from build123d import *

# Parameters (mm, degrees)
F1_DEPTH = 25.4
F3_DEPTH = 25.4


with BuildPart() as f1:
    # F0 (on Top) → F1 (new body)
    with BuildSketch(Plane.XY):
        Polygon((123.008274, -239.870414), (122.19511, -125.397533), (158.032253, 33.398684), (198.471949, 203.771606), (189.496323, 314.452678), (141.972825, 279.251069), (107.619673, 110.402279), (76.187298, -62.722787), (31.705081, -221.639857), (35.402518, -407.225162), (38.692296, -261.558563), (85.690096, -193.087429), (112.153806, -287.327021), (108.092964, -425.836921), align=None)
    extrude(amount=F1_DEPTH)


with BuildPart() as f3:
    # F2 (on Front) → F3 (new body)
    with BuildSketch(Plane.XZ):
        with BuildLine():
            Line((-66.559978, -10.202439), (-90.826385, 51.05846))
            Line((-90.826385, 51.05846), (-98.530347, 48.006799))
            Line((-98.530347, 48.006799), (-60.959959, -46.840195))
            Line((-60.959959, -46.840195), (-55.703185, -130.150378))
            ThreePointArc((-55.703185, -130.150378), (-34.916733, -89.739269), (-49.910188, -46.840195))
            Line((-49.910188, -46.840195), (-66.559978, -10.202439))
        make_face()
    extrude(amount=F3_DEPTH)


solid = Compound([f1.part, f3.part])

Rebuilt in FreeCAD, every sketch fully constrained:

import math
import FreeCAD as App
import Part
import Sketcher
Q = App.Units.Quantity

doc = App.newDocument("Part")
body = doc.addObject("PartDesign::Body", "Body")

# Sketch on XY plane
sketch1 = body.newObject("Sketcher::SketchObject", "Sketch")
sketch1.AttachmentSupport = (doc.getObject("XY_Plane"), [""])
sketch1.MapMode = "FlatFace"
sketch1.addGeometry([
    Part.LineSegment(App.Vector(123.008274, -239.870414, 0), App.Vector(122.19511, -125.397533, 0)),  # 0
    Part.LineSegment(App.Vector(122.19511, -125.397533, 0), App.Vector(158.032253, 33.398684, 0)),  # 1
    Part.LineSegment(App.Vector(158.032253, 33.398684, 0), App.Vector(198.471949, 203.771606, 0)),  # 2
    Part.LineSegment(App.Vector(198.471949, 203.771606, 0), App.Vector(189.496323, 314.452678, 0)),  # 3
    Part.LineSegment(App.Vector(189.496323, 314.452678, 0), App.Vector(141.972825, 279.251069, 0)),  # 4
    Part.LineSegment(App.Vector(141.972825, 279.251069, 0), App.Vector(107.619673, 110.402279, 0)),  # 5
    Part.LineSegment(App.Vector(107.619673, 110.402279, 0), App.Vector(76.187298, -62.722787, 0)),  # 6
    Part.LineSegment(App.Vector(76.187298, -62.722787, 0), App.Vector(31.705081, -221.639857, 0)),  # 7
    Part.LineSegment(App.Vector(31.705081, -221.639857, 0), App.Vector(35.402518, -407.225162, 0)),  # 8
    Part.LineSegment(App.Vector(35.402518, -407.225162, 0), App.Vector(38.692296, -261.558563, 0)),  # 9
    Part.LineSegment(App.Vector(38.692296, -261.558563, 0), App.Vector(85.690096, -193.087429, 0)),  # 10
    Part.LineSegment(App.Vector(85.690096, -193.087429, 0), App.Vector(112.153806, -287.327021, 0)),  # 11
    Part.LineSegment(App.Vector(112.153806, -287.327021, 0), App.Vector(108.092964, -425.836921, 0)),  # 12
    Part.LineSegment(App.Vector(108.092964, -425.836921, 0), App.Vector(123.008274, -239.870414, 0)),  # 13
], False)
sketch1.addConstraint([
    Sketcher.Constraint("Coincident", 0, 2, 1, 1),
    Sketcher.Constraint("Coincident", 1, 2, 2, 1),
    Sketcher.Constraint("Coincident", 2, 2, 3, 1),
    Sketcher.Constraint("Coincident", 3, 2, 4, 1),
    Sketcher.Constraint("Coincident", 4, 2, 5, 1),
    Sketcher.Constraint("Coincident", 5, 2, 6, 1),
    Sketcher.Constraint("Coincident", 6, 2, 7, 1),
    Sketcher.Constraint("Coincident", 7, 2, 8, 1),
    Sketcher.Constraint("Coincident", 8, 2, 9, 1),
    Sketcher.Constraint("Coincident", 9, 2, 10, 1),
    Sketcher.Constraint("Coincident", 10, 2, 11, 1),
    Sketcher.Constraint("Coincident", 11, 2, 12, 1),
    Sketcher.Constraint("Coincident", 12, 2, 13, 1),
    Sketcher.Constraint("Coincident", 13, 2, 0, 1),
    Sketcher.Constraint("DistanceX", -1, 1, 6, 2, Q("2.9994999 in")),
    Sketcher.Constraint("DistanceX", -1, 1, 8, 2, Q("1.3937999 in")),
    Sketcher.Constraint("DistanceY", 0, 2, 4, 2, Q("404.648602 mm")),
    Sketcher.Constraint("DistanceY", 5, 2, 3, 2, Q("204.050399 mm")),
    Sketcher.Constraint("DistanceY", 8, 2, 9, 2, Q("145.666599 mm")),
    Sketcher.Constraint("DistanceX", 9, 2, 10, 2, Q("46.9978 mm")),
    Sketcher.Constraint("DistanceY", 12, 2, 11, 2, Q("138.5099 mm")),
    Sketcher.Constraint("Distance", 0, Q("114.475769 mm")),
    Sketcher.Constraint("DistanceX", -1, 1, 0, 2, Q("122.19511 mm")),
    Sketcher.Constraint("DistanceX", -1, 1, 2, 2, Q("198.471949 mm")),
    Sketcher.Constraint("DistanceY", -1, 1, 3, 2, Q("314.452678 mm")),
    Sketcher.Constraint("DistanceY", -1, 1, 4, 2, Q("279.251069 mm")),
    Sketcher.Constraint("DistanceX", -1, 1, 7, 2, Q("31.705081 mm")),
    Sketcher.Constraint("DistanceY", 8, 2, -1, 1, Q("407.225162 mm")),
    Sketcher.Constraint("DistanceY", 10, 2, -1, 1, Q("193.087429 mm")),
    Sketcher.Constraint("DistanceY", 11, 2, -1, 1, Q("287.327021 mm")),
    Sketcher.Constraint("DistanceY", 1, 2, 2, 2, Q("170.372922 mm")),
    Sketcher.Constraint("DistanceY", 0, 2, 2, 2, Q("329.169139 mm")),
    Sketcher.Constraint("DistanceX", 1, 2, 3, 2, Q("31.46407 mm")),
    Sketcher.Constraint("DistanceX", 5, 2, 1, 2, Q("50.41258 mm")),
    Sketcher.Constraint("DistanceX", 5, 2, 4, 2, Q("34.353152 mm")),
    Sketcher.Constraint("DistanceY", 6, 2, 1, 2, Q("96.121471 mm")),
    Sketcher.Constraint("DistanceY", 7, 2, 6, 2, Q("158.91707 mm")),
    Sketcher.Constraint("DistanceX", 7, 2, 1, 2, Q("126.327172 mm")),
    Sketcher.Constraint("DistanceX", 9, 2, 11, 2, Q("73.46151 mm")),
    Sketcher.Constraint("DistanceX", 8, 2, 11, 2, Q("76.751288 mm")),
    Sketcher.Constraint("DistanceX", 10, 2, 13, 2, Q("37.318178 mm")),
    Sketcher.Constraint("Distance", 12, Q("138.569415 mm")),
])
pad1 = body.newObject("PartDesign::Pad", "Pad")
pad1.Profile = sketch1
pad1.Length = Q("1 in")
body2 = doc.addObject("PartDesign::Body", "Body001")

# Sketch on XZ plane
sketch2 = body2.newObject("Sketcher::SketchObject", "Sketch001")
sketch2.AttachmentSupport = (doc.getObject("XZ_Plane001"), [""])
sketch2.MapMode = "FlatFace"
sketch2.addGeometry([
    Part.LineSegment(App.Vector(-66.559978, -10.202439, 0), App.Vector(-90.826385, 51.05846, 0)),  # 0
    Part.LineSegment(App.Vector(-90.826385, 51.05846, 0), App.Vector(-98.530347, 48.006799, 0)),  # 1
    Part.LineSegment(App.Vector(-98.530347, 48.006799, 0), App.Vector(-60.959959, -46.840195, 0)),  # 2
    Part.LineSegment(App.Vector(-60.959959, -46.840195, 0), App.Vector(-55.703185, -130.150378, 0)),  # 3
    Part.ArcOfCircle(Part.Circle(App.Vector(-92.356711, -85.745164, 0), App.Vector(0, 0, 1), 57.578677), math.radians(-50.462612), math.radians(42.507261)),  # 4
    Part.LineSegment(App.Vector(-49.910188, -46.840195, 0), App.Vector(-66.559978, -10.202439, 0)),  # 5
], False)
sketch2.addConstraint([
    Sketcher.Constraint("Coincident", 0, 2, 1, 1),
    Sketcher.Constraint("Coincident", 1, 2, 2, 1),
    Sketcher.Constraint("Coincident", 2, 2, 3, 1),
    Sketcher.Constraint("Coincident", 3, 2, 4, 1),
    Sketcher.Constraint("Coincident", 4, 2, 5, 1),
    Sketcher.Constraint("Coincident", 5, 2, 0, 1),
    Sketcher.Constraint("Perpendicular", 0, 1),
    Sketcher.Constraint("Perpendicular", 1, 2),
    Sketcher.Constraint("Horizontal", 2, 2, 4, 2),
    Sketcher.Constraint("Radius", 4, Q("57.578677 mm")),
    Sketcher.Constraint("DistanceY", -1, 1, 1, 2, Q("48.006799 mm")),
    Sketcher.Constraint("DistanceX", 0, 2, 3, 2, Q("35.1232 mm")),
    Sketcher.Constraint("DistanceY", 5, 2, 0, 2, Q("61.260899 mm")),
    Sketcher.Constraint("Distance", 2, Q("102.017088 mm")),
    Sketcher.Constraint("DistanceX", 4, 3, -1, 1, Q("92.356711 mm")),
    Sketcher.Constraint("DistanceY", -1, 1, 0, 2, Q("51.05846 mm")),
    Sketcher.Constraint("DistanceX", 2, 2, -1, 1, Q("60.959959 mm")),
    Sketcher.Constraint("DistanceX", 4, 2, -1, 1, Q("49.910188 mm")),
    Sketcher.Constraint("DistanceX", 5, 2, -1, 1, Q("66.559978 mm")),
])
pad2 = body2.newObject("PartDesign::Pad", "Pad001")
pad2.Profile = sketch2
pad2.Length = Q("1 in")

doc.recompute()
